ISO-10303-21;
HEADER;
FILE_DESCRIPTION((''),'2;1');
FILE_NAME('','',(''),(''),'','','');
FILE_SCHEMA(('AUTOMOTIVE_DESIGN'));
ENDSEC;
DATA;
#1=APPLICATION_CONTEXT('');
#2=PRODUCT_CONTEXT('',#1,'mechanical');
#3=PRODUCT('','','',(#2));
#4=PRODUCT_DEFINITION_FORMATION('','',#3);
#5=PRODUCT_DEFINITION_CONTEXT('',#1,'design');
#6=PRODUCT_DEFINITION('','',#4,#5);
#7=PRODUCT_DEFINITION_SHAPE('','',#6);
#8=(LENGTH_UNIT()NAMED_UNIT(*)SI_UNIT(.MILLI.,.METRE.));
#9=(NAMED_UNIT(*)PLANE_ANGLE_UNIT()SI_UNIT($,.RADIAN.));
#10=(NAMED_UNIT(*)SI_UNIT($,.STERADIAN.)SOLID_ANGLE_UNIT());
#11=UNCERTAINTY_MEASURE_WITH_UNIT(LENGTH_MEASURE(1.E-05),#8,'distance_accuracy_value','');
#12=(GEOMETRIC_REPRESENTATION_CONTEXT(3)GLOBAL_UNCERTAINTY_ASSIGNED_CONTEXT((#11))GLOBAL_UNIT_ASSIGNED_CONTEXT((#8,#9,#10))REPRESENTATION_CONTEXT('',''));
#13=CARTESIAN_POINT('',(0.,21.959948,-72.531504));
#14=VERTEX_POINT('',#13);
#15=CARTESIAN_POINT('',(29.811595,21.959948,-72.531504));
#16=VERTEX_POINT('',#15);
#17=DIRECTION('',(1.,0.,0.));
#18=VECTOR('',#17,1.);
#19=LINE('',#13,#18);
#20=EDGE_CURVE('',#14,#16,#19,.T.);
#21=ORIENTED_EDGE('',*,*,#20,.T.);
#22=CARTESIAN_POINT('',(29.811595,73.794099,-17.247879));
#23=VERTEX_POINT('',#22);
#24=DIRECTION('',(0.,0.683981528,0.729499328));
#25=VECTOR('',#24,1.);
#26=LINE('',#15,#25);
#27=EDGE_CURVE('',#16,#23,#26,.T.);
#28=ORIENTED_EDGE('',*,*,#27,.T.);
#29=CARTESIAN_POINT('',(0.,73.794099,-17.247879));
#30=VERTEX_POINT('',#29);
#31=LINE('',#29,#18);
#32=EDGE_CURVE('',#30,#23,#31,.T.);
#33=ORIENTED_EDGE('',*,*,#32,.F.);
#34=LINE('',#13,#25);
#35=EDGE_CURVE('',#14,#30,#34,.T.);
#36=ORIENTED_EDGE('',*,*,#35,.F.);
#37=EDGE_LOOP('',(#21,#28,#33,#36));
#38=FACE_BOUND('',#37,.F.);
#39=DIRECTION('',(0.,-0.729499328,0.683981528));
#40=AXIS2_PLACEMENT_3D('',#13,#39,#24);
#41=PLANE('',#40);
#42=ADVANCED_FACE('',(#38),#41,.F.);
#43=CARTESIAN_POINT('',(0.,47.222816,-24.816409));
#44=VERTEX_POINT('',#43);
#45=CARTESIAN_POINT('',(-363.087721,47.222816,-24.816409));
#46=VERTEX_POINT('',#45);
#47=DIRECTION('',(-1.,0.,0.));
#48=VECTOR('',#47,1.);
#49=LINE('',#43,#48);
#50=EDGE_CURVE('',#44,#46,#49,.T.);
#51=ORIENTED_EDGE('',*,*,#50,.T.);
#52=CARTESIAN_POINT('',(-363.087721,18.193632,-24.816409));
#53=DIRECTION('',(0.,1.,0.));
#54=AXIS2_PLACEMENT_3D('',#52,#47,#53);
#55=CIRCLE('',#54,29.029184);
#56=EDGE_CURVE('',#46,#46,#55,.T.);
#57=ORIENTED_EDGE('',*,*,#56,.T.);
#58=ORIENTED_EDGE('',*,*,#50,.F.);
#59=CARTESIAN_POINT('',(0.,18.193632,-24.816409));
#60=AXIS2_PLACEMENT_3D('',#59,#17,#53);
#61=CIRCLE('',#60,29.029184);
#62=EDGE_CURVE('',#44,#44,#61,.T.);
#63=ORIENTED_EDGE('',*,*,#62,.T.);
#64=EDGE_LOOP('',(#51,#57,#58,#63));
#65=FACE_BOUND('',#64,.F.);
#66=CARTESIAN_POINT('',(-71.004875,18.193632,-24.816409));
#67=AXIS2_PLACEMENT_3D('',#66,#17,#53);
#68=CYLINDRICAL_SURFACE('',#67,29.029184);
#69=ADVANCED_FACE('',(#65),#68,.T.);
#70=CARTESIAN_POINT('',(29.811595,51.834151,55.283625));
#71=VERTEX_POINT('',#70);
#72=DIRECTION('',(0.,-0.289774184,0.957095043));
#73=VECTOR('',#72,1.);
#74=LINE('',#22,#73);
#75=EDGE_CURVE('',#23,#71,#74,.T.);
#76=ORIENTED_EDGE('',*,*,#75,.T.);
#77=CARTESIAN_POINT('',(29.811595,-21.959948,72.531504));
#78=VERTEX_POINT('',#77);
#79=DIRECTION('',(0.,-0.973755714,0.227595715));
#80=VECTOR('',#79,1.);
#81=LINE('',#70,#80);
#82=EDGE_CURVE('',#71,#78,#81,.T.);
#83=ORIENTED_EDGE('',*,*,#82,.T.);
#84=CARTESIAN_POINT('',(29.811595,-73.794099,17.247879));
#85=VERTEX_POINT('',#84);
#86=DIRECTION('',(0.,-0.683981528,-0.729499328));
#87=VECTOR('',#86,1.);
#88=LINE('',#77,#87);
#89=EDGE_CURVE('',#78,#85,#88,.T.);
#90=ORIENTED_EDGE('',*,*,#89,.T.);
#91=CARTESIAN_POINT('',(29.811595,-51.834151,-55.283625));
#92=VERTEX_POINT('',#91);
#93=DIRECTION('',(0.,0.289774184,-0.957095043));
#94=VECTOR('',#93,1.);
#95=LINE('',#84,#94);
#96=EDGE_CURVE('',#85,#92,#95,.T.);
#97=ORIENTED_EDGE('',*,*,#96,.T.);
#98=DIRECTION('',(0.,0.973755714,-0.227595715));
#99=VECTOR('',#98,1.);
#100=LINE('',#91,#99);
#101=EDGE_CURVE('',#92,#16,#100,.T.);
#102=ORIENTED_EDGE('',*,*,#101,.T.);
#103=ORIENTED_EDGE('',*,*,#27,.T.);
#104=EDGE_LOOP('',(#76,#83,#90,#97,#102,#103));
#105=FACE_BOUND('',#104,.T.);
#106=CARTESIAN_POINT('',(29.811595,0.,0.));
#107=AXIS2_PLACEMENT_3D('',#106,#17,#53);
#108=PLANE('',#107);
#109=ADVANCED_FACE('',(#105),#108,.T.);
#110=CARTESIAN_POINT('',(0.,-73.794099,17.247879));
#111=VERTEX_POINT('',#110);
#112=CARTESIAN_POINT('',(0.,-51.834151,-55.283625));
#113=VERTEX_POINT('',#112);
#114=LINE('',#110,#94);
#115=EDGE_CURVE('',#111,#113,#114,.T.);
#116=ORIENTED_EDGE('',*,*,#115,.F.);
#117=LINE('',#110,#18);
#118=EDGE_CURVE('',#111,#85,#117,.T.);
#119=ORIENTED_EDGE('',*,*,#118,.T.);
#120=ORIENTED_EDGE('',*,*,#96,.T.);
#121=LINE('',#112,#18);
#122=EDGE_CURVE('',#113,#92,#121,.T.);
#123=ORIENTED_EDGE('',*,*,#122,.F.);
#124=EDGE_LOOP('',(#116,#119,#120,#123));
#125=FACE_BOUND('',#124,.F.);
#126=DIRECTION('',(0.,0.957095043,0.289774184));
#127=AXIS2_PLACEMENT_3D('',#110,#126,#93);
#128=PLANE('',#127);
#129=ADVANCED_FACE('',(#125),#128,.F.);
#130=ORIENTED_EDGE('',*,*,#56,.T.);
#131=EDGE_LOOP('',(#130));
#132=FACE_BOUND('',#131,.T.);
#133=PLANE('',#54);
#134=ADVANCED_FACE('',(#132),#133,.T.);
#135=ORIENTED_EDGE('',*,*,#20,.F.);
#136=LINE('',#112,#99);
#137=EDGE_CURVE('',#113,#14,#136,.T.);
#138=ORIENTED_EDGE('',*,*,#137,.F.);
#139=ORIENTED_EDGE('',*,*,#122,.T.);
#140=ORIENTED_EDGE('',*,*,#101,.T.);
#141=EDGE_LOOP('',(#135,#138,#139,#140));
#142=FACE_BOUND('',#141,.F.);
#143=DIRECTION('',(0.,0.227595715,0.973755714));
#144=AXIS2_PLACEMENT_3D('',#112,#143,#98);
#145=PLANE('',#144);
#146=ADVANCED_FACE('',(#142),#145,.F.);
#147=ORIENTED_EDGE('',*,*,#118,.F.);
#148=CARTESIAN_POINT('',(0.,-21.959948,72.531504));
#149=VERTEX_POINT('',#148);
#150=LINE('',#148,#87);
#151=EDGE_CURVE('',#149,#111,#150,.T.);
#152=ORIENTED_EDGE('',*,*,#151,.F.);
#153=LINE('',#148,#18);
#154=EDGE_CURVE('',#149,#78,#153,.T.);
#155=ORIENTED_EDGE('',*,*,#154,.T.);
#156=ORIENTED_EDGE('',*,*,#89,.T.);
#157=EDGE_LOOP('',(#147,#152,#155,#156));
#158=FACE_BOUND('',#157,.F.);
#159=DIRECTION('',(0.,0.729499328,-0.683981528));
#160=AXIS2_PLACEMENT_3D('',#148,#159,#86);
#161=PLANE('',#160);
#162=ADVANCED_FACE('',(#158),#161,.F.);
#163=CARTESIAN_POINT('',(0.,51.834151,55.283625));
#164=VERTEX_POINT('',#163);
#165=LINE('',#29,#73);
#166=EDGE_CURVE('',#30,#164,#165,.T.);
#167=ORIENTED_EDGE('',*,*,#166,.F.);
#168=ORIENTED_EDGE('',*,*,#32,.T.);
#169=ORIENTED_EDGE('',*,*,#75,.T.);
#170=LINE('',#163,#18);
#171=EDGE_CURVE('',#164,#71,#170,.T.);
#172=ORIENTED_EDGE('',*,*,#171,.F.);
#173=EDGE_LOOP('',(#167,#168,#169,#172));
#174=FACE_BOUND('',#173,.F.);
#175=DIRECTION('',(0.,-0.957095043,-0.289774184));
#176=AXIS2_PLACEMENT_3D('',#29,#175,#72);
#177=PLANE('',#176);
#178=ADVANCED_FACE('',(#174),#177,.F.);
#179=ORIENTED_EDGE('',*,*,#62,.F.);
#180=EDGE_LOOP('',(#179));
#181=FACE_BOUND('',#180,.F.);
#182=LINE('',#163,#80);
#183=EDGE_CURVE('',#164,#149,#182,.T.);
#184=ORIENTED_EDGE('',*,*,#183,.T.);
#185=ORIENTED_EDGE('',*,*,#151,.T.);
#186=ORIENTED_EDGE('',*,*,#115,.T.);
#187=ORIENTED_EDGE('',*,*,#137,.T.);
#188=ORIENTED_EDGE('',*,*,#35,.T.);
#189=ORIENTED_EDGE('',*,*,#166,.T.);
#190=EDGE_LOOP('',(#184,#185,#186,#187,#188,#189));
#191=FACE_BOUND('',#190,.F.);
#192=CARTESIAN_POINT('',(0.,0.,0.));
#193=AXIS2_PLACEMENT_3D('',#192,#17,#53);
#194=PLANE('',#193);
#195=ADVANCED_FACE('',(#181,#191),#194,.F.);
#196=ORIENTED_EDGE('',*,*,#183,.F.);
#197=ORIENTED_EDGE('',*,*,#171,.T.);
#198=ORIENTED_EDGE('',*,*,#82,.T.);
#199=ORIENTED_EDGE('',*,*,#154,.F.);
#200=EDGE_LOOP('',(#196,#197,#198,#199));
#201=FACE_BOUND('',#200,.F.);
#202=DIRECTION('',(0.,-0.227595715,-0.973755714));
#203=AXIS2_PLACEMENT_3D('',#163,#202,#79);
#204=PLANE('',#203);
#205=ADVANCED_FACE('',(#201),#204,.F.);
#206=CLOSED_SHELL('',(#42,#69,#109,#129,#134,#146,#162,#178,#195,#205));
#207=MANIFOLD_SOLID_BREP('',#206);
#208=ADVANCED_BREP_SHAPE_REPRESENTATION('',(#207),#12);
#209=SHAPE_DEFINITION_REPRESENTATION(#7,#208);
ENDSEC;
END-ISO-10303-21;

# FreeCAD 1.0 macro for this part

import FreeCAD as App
import Part
import Sketcher
from FreeCAD import Vector
Q = App.Units.Quantity


def add_polygon(sketch, points):
    """Adds a closed chain of lines whose ends are joined by coincident constraints."""
    first, n = sketch.GeometryCount, len(points)
    for a, b in zip(points, points[1:] + points[:1]):
        sketch.addGeometry(Part.LineSegment(App.Vector(*a, 0), App.Vector(*b, 0)), False)
    for i in range(n):
        sketch.addConstraint(Sketcher.Constraint("Coincident", first + i, 2, first + (i + 1) % n, 1))

doc = App.newDocument("Part")
body = doc.addObject("PartDesign::Body", "Body")

sketch1 = body.newObject("Sketcher::SketchObject", "Sketch")
sketch1.AttachmentSupport = (doc.getObject("YZ_Plane"), [""])
sketch1.MapMode = "FlatFace"
add_polygon(sketch1, [(-74, 17), (-52, -55), (22, -73), (74, -17), (52, 55), (-22, 73)])
sketch1.addConstraint([
    Sketcher.Constraint("Symmetric", 0, 2, 3, 2, -1, 1),
    Sketcher.Constraint("Symmetric", 1, 2, 4, 2, -1, 1),
    Sketcher.Constraint("Symmetric", 2, 2, 5, 2, -1, 1),
    Sketcher.Constraint("Equal", 0, 1),
    Sketcher.Constraint("Equal", 1, 2),
    Sketcher.Constraint("DistanceX", -1, 1, 2, 2, Q("73.794099 mm")),
    Sketcher.Constraint("DistanceX", 0, 2, 1, 2, Q("73.794099 mm")),
    Sketcher.Constraint("DistanceX", 0, 2, 3, 2, Q("103.668302 mm")),
    Sketcher.Constraint("Distance", 0, Q("75.782969 mm")),
])
pad1 = body.newObject("PartDesign::Pad", "Pad")
pad1.Profile = sketch1
pad1.Length = 29.811595

sketch2 = body.newObject("Sketcher::SketchObject", "Sketch001")
sketch2.AttachmentSupport = (doc.getObject("YZ_Plane"), [""])
sketch2.MapMode = "FlatFace"
sketch2.addGeometry(Part.Circle(Vector(18, -25, 0), Vector(0, 0, 1), 29), False)
sketch2.addConstraint([
    Sketcher.Constraint("Diameter", 0, Q("58.058368 mm")),
    Sketcher.Constraint("DistanceY", 0, 3, -1, 1, Q("24.816409 mm")),
    Sketcher.Constraint("DistanceX", -1, 1, 0, 3, Q("18.193632 mm")),
])
pad2 = body.newObject("PartDesign::Pad", "Pad001")
pad2.Profile = sketch2
pad2.Length = 71.004875
pad2.Reversed = True

sketch3 = body.newObject("Sketcher::SketchObject", "Sketch002")
sketch3.AttachmentSupport = (doc.getObject("YZ_Plane"), [""])
sketch3.MapMode = "FlatFace"
sketch3.AttachmentOffset = App.Placement(Vector(0, 0, -71.004875), App.Rotation())
sketch3.addGeometry(Part.Circle(Vector(18, -25, 0), Vector(0, 0, 1), 29), False)
sketch3.addConstraint([
    Sketcher.Constraint("Diameter", 0, Q("58.058368 mm")),
    Sketcher.Constraint("DistanceY", 0, 3, -1, 1, Q("24.816409 mm")),
    Sketcher.Constraint("DistanceX", -1, 1, 0, 3, Q("18.193632 mm")),
])
pad3 = body.newObject("PartDesign::Pad", "Pad002")
pad3.Profile = sketch3
pad3.Length = 292.082846
pad3.Reversed = True

doc.recompute()
